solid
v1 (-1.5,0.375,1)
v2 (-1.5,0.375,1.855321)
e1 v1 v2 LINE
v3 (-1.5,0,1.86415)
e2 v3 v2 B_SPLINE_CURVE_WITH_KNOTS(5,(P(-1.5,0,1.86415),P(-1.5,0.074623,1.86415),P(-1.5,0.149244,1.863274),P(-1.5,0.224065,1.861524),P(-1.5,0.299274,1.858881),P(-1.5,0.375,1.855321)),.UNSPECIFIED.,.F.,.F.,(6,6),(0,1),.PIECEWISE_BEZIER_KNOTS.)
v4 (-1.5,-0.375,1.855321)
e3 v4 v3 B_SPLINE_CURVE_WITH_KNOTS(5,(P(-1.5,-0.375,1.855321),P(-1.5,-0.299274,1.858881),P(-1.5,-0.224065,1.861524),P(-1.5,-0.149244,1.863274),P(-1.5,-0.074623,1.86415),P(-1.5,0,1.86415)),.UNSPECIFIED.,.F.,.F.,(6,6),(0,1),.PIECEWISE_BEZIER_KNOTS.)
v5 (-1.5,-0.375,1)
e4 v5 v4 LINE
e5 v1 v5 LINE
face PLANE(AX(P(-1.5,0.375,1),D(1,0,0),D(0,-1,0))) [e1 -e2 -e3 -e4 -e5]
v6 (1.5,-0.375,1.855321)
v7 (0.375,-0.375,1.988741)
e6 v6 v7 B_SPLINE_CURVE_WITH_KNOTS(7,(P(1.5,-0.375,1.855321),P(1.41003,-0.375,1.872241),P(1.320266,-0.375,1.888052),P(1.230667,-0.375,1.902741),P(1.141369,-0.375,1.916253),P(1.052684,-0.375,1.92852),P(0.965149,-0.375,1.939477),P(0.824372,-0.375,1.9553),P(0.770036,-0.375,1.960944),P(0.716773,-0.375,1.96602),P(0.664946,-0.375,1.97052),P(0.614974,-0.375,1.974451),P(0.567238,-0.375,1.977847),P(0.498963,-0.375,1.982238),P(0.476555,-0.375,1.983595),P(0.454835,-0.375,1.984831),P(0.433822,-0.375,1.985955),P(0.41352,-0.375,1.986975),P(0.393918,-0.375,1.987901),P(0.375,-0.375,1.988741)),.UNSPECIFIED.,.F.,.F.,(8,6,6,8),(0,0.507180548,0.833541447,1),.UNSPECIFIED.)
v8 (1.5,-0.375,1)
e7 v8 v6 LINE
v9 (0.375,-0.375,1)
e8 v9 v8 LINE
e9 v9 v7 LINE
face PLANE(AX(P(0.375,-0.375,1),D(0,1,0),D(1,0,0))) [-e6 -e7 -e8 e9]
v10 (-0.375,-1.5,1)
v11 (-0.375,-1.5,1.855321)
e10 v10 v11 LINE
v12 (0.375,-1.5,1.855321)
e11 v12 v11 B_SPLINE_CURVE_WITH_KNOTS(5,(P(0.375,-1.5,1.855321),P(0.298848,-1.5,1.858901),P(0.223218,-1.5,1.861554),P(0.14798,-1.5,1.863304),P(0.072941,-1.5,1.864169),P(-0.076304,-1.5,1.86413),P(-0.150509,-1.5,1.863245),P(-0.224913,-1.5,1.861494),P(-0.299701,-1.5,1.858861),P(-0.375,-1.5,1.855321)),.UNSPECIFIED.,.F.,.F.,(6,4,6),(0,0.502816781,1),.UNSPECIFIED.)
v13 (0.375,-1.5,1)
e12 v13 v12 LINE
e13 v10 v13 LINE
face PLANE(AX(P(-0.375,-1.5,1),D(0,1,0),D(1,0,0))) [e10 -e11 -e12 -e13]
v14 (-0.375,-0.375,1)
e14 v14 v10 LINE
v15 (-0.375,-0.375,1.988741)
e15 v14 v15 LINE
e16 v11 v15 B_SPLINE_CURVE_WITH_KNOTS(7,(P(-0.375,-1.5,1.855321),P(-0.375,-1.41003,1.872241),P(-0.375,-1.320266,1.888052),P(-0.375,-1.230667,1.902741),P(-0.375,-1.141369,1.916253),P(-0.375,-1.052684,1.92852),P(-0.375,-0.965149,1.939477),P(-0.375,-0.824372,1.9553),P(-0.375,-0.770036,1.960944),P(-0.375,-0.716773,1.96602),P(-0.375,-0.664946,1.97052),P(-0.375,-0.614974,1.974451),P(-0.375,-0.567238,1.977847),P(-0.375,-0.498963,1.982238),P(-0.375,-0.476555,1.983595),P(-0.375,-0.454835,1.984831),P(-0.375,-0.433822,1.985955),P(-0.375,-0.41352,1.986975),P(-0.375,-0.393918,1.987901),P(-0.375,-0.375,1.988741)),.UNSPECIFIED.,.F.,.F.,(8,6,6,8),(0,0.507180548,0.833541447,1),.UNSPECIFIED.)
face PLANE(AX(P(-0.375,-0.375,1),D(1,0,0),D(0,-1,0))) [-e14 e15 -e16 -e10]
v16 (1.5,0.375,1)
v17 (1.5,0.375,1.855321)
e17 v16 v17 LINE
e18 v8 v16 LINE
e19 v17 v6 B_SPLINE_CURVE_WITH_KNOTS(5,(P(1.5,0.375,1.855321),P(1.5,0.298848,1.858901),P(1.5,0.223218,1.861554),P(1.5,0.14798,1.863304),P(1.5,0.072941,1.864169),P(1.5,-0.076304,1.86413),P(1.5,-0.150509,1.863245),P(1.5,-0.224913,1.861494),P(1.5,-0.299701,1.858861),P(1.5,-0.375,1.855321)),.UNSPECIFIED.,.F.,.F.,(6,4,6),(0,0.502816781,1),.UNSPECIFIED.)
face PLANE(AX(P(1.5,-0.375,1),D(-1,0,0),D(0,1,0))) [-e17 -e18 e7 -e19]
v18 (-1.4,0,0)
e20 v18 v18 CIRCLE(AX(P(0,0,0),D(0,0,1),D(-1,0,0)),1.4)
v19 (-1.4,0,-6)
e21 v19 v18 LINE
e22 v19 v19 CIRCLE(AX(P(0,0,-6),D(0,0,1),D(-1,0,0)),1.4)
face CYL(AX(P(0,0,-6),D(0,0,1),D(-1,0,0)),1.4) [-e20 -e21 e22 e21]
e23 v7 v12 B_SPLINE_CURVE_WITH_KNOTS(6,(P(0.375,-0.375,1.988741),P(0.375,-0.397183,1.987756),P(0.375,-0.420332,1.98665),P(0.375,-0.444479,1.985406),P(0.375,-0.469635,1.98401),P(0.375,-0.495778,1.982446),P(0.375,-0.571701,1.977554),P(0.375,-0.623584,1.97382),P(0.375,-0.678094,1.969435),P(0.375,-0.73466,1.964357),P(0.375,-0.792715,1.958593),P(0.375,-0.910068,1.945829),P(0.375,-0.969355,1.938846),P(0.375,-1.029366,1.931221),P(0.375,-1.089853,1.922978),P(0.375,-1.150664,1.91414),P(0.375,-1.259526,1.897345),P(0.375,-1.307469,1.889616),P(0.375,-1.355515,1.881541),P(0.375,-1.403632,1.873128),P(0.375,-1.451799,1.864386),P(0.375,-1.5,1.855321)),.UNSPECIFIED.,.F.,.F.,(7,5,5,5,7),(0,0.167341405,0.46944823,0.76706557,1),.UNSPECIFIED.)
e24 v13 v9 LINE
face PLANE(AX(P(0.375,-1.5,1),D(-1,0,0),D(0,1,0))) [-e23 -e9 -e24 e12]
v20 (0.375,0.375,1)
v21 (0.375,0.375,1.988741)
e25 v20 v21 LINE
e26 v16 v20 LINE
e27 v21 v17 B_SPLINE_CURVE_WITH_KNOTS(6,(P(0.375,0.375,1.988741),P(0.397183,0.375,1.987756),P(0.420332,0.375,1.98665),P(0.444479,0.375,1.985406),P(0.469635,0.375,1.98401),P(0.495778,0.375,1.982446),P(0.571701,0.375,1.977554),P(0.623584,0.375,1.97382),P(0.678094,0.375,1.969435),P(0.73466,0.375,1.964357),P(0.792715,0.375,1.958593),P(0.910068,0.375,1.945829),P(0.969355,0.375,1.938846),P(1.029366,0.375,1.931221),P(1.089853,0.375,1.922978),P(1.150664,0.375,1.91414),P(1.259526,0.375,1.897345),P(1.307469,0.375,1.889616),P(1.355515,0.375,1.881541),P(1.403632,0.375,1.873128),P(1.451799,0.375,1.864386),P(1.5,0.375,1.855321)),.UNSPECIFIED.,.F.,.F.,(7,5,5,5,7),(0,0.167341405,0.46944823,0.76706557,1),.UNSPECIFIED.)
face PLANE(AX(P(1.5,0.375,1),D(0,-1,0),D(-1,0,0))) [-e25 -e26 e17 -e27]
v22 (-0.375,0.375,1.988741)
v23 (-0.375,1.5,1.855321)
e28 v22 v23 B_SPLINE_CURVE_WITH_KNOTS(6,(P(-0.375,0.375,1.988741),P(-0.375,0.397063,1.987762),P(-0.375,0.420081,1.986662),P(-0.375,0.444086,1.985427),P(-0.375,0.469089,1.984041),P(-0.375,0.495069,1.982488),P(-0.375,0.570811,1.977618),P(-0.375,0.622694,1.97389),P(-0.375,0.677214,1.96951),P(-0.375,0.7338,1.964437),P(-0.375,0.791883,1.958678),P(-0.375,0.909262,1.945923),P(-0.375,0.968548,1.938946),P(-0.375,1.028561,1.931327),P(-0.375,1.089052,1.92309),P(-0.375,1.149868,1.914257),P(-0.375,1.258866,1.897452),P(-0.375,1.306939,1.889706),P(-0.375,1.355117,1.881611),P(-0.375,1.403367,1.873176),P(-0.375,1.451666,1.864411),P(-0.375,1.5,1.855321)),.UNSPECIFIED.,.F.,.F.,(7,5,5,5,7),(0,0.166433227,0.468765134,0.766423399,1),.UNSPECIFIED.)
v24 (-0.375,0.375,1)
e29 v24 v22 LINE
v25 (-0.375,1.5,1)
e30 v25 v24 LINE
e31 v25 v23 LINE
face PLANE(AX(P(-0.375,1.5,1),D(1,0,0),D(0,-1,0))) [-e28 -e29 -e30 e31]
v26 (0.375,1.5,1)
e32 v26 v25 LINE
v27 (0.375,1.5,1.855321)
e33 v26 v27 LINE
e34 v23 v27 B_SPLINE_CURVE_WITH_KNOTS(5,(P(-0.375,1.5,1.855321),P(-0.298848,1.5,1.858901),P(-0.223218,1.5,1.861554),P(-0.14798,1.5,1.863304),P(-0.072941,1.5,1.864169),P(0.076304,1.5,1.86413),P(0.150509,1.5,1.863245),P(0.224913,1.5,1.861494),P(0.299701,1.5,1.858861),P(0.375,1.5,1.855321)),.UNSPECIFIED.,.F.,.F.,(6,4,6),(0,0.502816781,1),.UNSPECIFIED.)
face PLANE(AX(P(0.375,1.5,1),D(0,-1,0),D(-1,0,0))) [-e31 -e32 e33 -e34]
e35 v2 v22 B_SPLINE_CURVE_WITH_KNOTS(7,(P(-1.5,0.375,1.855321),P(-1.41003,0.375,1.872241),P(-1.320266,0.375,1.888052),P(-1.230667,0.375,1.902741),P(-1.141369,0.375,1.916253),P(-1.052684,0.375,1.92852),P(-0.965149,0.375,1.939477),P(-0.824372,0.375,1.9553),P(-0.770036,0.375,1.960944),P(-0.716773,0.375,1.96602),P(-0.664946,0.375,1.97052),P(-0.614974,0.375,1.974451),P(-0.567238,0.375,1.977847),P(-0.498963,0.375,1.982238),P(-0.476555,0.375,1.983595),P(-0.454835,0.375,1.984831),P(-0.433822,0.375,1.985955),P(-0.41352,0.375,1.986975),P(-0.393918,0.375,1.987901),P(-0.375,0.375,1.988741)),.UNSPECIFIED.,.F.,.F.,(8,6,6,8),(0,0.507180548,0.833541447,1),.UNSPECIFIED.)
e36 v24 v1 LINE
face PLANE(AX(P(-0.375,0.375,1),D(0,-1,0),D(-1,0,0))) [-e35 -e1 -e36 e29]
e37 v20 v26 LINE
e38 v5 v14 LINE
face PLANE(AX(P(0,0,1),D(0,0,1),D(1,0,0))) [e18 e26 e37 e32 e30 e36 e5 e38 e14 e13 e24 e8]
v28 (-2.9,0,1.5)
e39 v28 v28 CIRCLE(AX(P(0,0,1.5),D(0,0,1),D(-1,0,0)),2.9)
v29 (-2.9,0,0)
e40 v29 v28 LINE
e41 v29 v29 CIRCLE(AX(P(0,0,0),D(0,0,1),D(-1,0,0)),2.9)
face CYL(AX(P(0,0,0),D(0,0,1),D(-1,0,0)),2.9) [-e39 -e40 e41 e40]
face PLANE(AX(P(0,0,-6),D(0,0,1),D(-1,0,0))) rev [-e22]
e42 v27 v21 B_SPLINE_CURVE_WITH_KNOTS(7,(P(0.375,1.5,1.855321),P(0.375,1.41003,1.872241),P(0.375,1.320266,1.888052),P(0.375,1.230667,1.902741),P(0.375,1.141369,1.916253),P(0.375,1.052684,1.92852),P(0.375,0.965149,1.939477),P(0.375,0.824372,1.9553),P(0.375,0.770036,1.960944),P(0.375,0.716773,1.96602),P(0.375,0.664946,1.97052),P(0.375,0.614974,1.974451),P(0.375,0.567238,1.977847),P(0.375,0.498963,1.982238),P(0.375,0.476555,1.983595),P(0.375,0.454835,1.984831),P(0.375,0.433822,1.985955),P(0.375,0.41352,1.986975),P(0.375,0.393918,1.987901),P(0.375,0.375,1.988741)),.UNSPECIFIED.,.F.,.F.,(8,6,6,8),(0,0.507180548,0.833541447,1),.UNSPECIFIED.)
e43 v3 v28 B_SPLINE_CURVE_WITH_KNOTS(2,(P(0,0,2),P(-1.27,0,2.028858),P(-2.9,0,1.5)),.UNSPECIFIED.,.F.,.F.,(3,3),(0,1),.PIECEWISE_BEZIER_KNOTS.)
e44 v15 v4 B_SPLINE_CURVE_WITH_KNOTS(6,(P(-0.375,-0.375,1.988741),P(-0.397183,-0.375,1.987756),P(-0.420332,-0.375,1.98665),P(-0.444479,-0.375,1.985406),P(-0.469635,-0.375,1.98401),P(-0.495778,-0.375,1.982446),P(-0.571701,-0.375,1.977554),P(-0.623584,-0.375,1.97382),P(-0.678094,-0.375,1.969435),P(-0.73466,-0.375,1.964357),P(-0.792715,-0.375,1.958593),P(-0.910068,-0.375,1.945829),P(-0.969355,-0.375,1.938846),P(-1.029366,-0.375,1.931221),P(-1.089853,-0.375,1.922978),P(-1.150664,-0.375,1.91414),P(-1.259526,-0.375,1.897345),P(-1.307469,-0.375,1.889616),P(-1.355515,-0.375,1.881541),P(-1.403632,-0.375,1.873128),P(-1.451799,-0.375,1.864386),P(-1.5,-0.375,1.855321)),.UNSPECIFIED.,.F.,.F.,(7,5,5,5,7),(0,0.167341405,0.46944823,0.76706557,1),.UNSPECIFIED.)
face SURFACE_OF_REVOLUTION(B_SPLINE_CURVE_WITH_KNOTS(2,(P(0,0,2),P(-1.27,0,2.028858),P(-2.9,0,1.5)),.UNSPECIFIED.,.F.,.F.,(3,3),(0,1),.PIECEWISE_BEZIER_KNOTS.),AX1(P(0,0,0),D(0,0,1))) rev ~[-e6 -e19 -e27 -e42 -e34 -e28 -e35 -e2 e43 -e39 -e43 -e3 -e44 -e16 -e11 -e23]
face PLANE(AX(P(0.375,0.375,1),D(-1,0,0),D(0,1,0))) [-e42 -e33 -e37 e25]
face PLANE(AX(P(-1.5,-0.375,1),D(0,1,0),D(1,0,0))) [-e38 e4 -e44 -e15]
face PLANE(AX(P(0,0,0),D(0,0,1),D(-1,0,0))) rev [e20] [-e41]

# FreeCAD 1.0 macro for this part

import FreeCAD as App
import Part
import Sketcher

V = App.Vector
Q = App.Units.Quantity

doc = App.newDocument("Part")
body = doc.addObject("PartDesign::Body", "Body")

# Sketch on XZ plane
sketch1 = body.newObject("Sketcher::SketchObject", "Sketch")
sketch1.AttachmentSupport = (doc.getObject("XZ_Plane"), [""])
sketch1.MapMode = "FlatFace"
sketch1.addGeometry([
    Part.LineSegment(V(-1.4, -6, 0), V(0, -6, 0)),  # 0
    Part.LineSegment(V(0, -6, 0), V(0, 2, 0)),  # 1
    Part.BSplineCurve([V(0, 2, 0), V(-1.27, 2.028858, 0), V(-2.9, 1.5, 0)], [3, 3], [0, 1], False, 2, [1, 1, 1], False),  # 2
    Part.LineSegment(V(-2.9, 1.5, 0), V(-2.9, 0, 0)),  # 3
    Part.LineSegment(V(-2.9, 0, 0), V(-1.4, 0, 0)),  # 4
    Part.LineSegment(V(-1.4, 0, 0), V(-1.4, -6, 0)),  # 5
], False)
sketch1.addConstraint([
    Sketcher.Constraint("Block", 2),
    Sketcher.Constraint("Coincident", 0, 2, 1, 1),
    Sketcher.Constraint("Coincident", 1, 2, 2, 1),
    Sketcher.Constraint("Coincident", 2, 2, 3, 1),
    Sketcher.Constraint("Coincident", 3, 2, 4, 1),
    Sketcher.Constraint("Coincident", 4, 2, 5, 1),
    Sketcher.Constraint("Coincident", 5, 2, 0, 1),
    Sketcher.Constraint("Horizontal", 0),
    Sketcher.Constraint("Vertical", 1),
    Sketcher.Constraint("Vertical", 3),
    Sketcher.Constraint("Horizontal", 4),
    Sketcher.Constraint("Vertical", 5),
    Sketcher.Constraint("PointOnObject", 3, 2, -1),
    Sketcher.Constraint("DistanceY", 1, 1, 1, 2, Q("8 mm")),
    Sketcher.Constraint("DistanceX", 0, 1, 0, 2, Q("1.4 mm")),
])
revolution = body.newObject("PartDesign::Revolution", "Revolution")
revolution.Profile = sketch1
revolution.ReferenceAxis = (sketch1, ["V_Axis"])
revolution.Angle = 360

# Sketch on XY plane
sketch2 = body.newObject("Sketcher::SketchObject", "Sketch001")
sketch2.AttachmentSupport = (doc.getObject("XY_Plane"), [""])
sketch2.MapMode = "FlatFace"
sketch2.AttachmentOffset = App.Placement(V(0, 0, 1), App.Rotation())
sketch2.addGeometry([
    Part.LineSegment(V(0.4, 1.5, 0), V(-0.4, 1.5, 0)),  # 0
    Part.LineSegment(V(-0.4, 1.5, 0), V(-0.4, 0.4, 0)),  # 1
    Part.LineSegment(V(-0.4, 0.4, 0), V(-1.5, 0.4, 0)),  # 2
    Part.LineSegment(V(-1.5, 0.4, 0), V(-1.5, -0.4, 0)),  # 3
    Part.LineSegment(V(-1.5, -0.4, 0), V(-0.4, -0.4, 0)),  # 4
    Part.LineSegment(V(-0.4, -0.4, 0), V(-0.4, -1.5, 0)),  # 5
    Part.LineSegment(V(-0.4, -1.5, 0), V(0.4, -1.5, 0)),  # 6
    Part.LineSegment(V(0.4, -1.5, 0), V(0.4, -0.4, 0)),  # 7
    Part.LineSegment(V(0.4, -0.4, 0), V(1.5, -0.4, 0)),  # 8
    Part.LineSegment(V(1.5, -0.4, 0), V(1.5, 0.4, 0)),  # 9
    Part.LineSegment(V(1.5, 0.4, 0), V(0.4, 0.4, 0)),  # 10
    Part.LineSegment(V(0.4, 0.4, 0), V(0.4, 1.5, 0)),  # 11
], False)
sketch2.addConstraint([
    Sketcher.Constraint("Coincident", 0, 2, 1, 1),
    Sketcher.Constraint("Coincident", 1, 2, 2, 1),
    Sketcher.Constraint("Coincident", 2, 2, 3, 1),
    Sketcher.Constraint("Coincident", 3, 2, 4, 1),
    Sketcher.Constraint("Coincident", 4, 2, 5, 1),
    Sketcher.Constraint("Coincident", 5, 2, 6, 1),
    Sketcher.Constraint("Coincident", 6, 2, 7, 1),
    Sketcher.Constraint("Coincident", 7, 2, 8, 1),
    Sketcher.Constraint("Coincident", 8, 2, 9, 1),
    Sketcher.Constraint("Coincident", 9, 2, 10, 1),
    Sketcher.Constraint("Coincident", 10, 2, 11, 1),
    Sketcher.Constraint("Coincident", 11, 2, 0, 1),
    Sketcher.Constraint("Horizontal", 0),
    Sketcher.Constraint("Vertical", 1),
    Sketcher.Constraint("Horizontal", 2),
    Sketcher.Constraint("Vertical", 3),
    Sketcher.Constraint("Horizontal", 4),
    Sketcher.Constraint("Vertical", 5),
    Sketcher.Constraint("Horizontal", 6),
    Sketcher.Constraint("Vertical", 7),
    Sketcher.Constraint("Horizontal", 8),
    Sketcher.Constraint("Vertical", 9),
    Sketcher.Constraint("Horizontal", 10),
    Sketcher.Constraint("Vertical", 11),
    Sketcher.Constraint("Symmetric", 0, 2, 6, 2, -1, 1),
    Sketcher.Constraint("Symmetric", 2, 2, 8, 2, -1, 1),
    Sketcher.Constraint("Symmetric", 4, 2, 10, 2, -1, 1),
    Sketcher.Constraint("Symmetric", 4, 2, 7, 2, -2),
    Sketcher.Constraint("Equal", 10, 1),
    Sketcher.Constraint("Equal", 6, 3),
    Sketcher.Constraint("DistanceY", 5, 2, 0, 2, Q("3 mm")),
    Sketcher.Constraint("DistanceX", 0, 2, 0, 1, Q("0.75 mm")),
])
pocket1 = body.newObject("PartDesign::Pocket", "Pocket")
pocket1.Profile = sketch2
pocket1.Type = "ThroughAll"
pocket1.Reversed = True

doc.recompute()
